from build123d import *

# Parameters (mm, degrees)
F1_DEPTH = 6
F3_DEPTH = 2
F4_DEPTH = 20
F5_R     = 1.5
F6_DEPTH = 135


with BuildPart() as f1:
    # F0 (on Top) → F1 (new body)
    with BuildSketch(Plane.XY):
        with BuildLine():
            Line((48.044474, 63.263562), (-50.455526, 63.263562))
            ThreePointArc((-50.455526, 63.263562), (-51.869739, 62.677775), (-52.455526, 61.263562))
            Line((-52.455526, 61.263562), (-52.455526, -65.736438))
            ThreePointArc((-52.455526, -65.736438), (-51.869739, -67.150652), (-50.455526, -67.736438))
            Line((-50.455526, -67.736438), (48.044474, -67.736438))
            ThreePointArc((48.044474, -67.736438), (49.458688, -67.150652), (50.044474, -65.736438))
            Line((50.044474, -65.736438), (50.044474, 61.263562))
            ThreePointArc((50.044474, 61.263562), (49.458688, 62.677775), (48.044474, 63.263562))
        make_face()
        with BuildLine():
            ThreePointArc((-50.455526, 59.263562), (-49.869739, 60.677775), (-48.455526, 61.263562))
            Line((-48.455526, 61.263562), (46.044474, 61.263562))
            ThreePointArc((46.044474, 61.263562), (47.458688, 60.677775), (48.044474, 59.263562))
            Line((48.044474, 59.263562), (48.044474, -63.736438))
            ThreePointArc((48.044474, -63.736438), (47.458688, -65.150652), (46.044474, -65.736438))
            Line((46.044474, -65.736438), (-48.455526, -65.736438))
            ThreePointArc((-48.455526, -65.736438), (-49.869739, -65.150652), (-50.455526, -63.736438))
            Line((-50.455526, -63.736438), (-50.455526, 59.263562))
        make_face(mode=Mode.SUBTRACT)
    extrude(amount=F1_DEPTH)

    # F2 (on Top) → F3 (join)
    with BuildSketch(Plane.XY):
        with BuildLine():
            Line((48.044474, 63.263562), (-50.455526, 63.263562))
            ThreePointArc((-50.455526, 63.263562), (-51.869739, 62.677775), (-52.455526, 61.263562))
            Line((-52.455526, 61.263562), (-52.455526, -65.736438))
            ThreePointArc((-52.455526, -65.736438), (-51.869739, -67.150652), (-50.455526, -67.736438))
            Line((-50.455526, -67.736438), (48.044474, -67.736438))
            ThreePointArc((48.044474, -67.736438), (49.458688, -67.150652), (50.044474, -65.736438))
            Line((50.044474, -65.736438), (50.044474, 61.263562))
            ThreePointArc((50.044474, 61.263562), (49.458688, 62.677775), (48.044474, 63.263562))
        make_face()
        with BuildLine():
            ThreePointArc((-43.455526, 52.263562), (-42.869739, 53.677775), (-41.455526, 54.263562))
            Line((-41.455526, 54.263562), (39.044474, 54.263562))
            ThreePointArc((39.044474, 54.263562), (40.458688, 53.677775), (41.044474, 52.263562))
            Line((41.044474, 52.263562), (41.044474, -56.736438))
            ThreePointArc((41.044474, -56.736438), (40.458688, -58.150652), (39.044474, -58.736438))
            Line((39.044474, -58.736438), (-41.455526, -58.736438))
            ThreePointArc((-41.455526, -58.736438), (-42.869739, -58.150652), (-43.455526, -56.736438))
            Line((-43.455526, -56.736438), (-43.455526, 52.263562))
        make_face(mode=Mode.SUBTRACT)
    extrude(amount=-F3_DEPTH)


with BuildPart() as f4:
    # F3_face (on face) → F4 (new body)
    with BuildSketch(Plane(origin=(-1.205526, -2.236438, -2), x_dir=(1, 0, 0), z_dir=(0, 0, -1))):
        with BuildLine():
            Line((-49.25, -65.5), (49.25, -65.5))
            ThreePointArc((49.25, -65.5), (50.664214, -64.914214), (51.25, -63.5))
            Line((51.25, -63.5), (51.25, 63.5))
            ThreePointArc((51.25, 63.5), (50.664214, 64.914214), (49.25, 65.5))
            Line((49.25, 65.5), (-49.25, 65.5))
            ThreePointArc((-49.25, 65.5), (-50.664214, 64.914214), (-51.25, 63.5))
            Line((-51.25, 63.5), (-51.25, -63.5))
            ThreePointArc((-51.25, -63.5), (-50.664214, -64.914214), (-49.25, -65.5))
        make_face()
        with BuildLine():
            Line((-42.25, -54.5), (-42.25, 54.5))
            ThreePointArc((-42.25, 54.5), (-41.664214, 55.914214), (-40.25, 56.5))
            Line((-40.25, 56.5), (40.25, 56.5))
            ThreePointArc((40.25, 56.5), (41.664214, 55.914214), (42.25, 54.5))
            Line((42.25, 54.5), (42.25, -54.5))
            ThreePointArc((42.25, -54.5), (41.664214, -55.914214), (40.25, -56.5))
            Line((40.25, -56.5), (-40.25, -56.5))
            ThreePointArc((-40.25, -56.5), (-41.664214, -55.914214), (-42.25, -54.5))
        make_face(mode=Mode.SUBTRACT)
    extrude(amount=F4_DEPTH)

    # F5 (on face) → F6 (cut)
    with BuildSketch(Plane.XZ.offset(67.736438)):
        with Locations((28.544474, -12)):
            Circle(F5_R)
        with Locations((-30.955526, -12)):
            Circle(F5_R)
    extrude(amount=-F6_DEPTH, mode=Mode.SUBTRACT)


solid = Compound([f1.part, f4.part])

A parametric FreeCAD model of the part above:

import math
import FreeCAD as App
import Part
import Sketcher
from FreeCAD import Vector

doc = App.newDocument("Part")
body = doc.addObject("PartDesign::Body", "Body")

# Sketch on XY plane
sketch1 = doc.addObject("Sketcher::SketchObject", "Sketch")
body.addObject(sketch1)
sketch1.AttachmentSupport = (doc.XY_Plane, [""])
sketch1.MapMode = "FlatFace"
sketch1.addGeometry([
    Part.LineSegment(Vector(48, 63.3, 0), Vector(-50.5, 63.3, 0)),  # 0
    Part.ArcOfCircle(Part.Circle(Vector(-50.5, 61.3, 0), Vector(0, 0, 1), 2), math.radians(90), math.radians(180)),  # 1
    Part.LineSegment(Vector(-52.5, 61.3, 0), Vector(-52.5, -65.7, 0)),  # 2
    Part.ArcOfCircle(Part.Circle(Vector(-50.5, -65.7, 0), Vector(0, 0, 1), 2), math.radians(-180), math.radians(-90)),  # 3
    Part.LineSegment(Vector(-50.5, -67.7, 0), Vector(48, -67.7, 0)),  # 4
    Part.ArcOfCircle(Part.Circle(Vector(48, -65.7, 0), Vector(0, 0, 1), 2), math.radians(-90), math.radians(0)),  # 5
    Part.LineSegment(Vector(50, -65.7, 0), Vector(50, 61.3, 0)),  # 6
    Part.ArcOfCircle(Part.Circle(Vector(48, 61.3, 0), Vector(0, 0, 1), 2), math.radians(0), math.radians(90)),  # 7
    Part.LineSegment(Vector(-50.5, -63.7, 0), Vector(-50.5, 59.3, 0)),  # 8
    Part.ArcOfCircle(Part.Circle(Vector(-48.5, 59.3, 0), Vector(0, 0, 1), 2), math.radians(90), math.radians(180)),  # 9
    Part.LineSegment(Vector(-48.5, 61.3, 0), Vector(46, 61.3, 0)),  # 10
    Part.ArcOfCircle(Part.Circle(Vector(46, 59.3, 0), Vector(0, 0, 1), 2), math.radians(0), math.radians(90)),  # 11
    Part.LineSegment(Vector(48, 59.3, 0), Vector(48, -63.7, 0)),  # 12
    Part.ArcOfCircle(Part.Circle(Vector(46, -63.7, 0), Vector(0, 0, 1), 2), math.radians(-90), math.radians(0)),  # 13
    Part.LineSegment(Vector(46, -65.7, 0), Vector(-48.5, -65.7, 0)),  # 14
    Part.ArcOfCircle(Part.Circle(Vector(-48.5, -63.7, 0), Vector(0, 0, 1), 2), math.radians(-180), math.radians(-90)),  # 15
], False)
sketch1.addConstraint([
    Sketcher.Constraint("Tangent", 0, 2, 1, 1),
    Sketcher.Constraint("Tangent", 1, 2, 2, 1),
    Sketcher.Constraint("Tangent", 2, 2, 3, 1),
    Sketcher.Constraint("Tangent", 3, 2, 4, 1),
    Sketcher.Constraint("Tangent", 4, 2, 5, 1),
    Sketcher.Constraint("Tangent", 5, 2, 6, 1),
    Sketcher.Constraint("Tangent", 6, 2, 7, 1),
    Sketcher.Constraint("Tangent", 7, 2, 0, 1),
    Sketcher.Constraint("Tangent", 8, 2, 9, 2),
    Sketcher.Constraint("Tangent", 9, 1, 10, 1),
    Sketcher.Constraint("Tangent", 10, 2, 11, 2),
    Sketcher.Constraint("Tangent", 11, 1, 12, 1),
    Sketcher.Constraint("Tangent", 12, 2, 13, 2),
    Sketcher.Constraint("Tangent", 13, 1, 14, 1),
    Sketcher.Constraint("Tangent", 14, 2, 15, 2),
    Sketcher.Constraint("Tangent", 15, 1, 8, 1),
    Sketcher.Constraint("Horizontal", 0),
    Sketcher.Constraint("Vertical", 2),
    Sketcher.Constraint("Horizontal", 4),
    Sketcher.Constraint("Vertical", 6),
    Sketcher.Constraint("Vertical", 8),
    Sketcher.Constraint("Horizontal", 10),
    Sketcher.Constraint("Vertical", 12),
    Sketcher.Constraint("Horizontal", 14),
    Sketcher.Constraint("Equal", 1, 3),
    Sketcher.Constraint("Equal", 3, 5),
    Sketcher.Constraint("Equal", 5, 7),
    Sketcher.Constraint("Equal", 7, 9),
    Sketcher.Constraint("Equal", 9, 11),
    Sketcher.Constraint("Equal", 11, 13),
    Sketcher.Constraint("Equal", 13, 15),
    Sketcher.Constraint("Horizontal", 6, 2, 9, 1),
    Sketcher.Constraint("Horizontal", 5, 2, 13, 1),
    Sketcher.Constraint("Vertical", 3, 2, 8, 2),
    Sketcher.Constraint("Vertical", 7, 2, 11, 1),
    Sketcher.Constraint("Radius", 1, 2.000002),
    Sketcher.Constraint("DistanceY", 2, 2, 2, 1, 127.0),
    Sketcher.Constraint("DistanceX", 0, 2, 0, 1, 98.5),
    Sketcher.Constraint("DistanceY", -1, 1, 1, 3, 61.26356),
    Sketcher.Constraint("DistanceX", 1, 3, -1, 1, 50.455524),
])
pad1 = doc.addObject("PartDesign::Pad", "Pad")
body.addObject(pad1)
pad1.Profile = sketch1
pad1.Length = 6

# Sketch on XY plane
sketch2 = doc.addObject("Sketcher::SketchObject", "Sketch001")
body.addObject(sketch2)
sketch2.AttachmentSupport = (doc.XY_Plane, [""])
sketch2.MapMode = "FlatFace"
sketch2.addGeometry([
    Part.LineSegment(Vector(48, 63.3, 0), Vector(-50.5, 63.3, 0)),  # 0
    Part.ArcOfCircle(Part.Circle(Vector(-50.5, 61.3, 0), Vector(0, 0, 1), 2), math.radians(90), math.radians(180)),  # 1
    Part.LineSegment(Vector(-52.5, 61.3, 0), Vector(-52.5, -65.7, 0)),  # 2
    Part.ArcOfCircle(Part.Circle(Vector(-50.5, -65.7, 0), Vector(0, 0, 1), 2), math.radians(-180), math.radians(-90)),  # 3
    Part.LineSegment(Vector(-50.5, -67.7, 0), Vector(48, -67.7, 0)),  # 4
    Part.ArcOfCircle(Part.Circle(Vector(48, -65.7, 0), Vector(0, 0, 1), 2), math.radians(-90), math.radians(0)),  # 5
    Part.LineSegment(Vector(50, -65.7, 0), Vector(50, 61.3, 0)),  # 6
    Part.ArcOfCircle(Part.Circle(Vector(48, 61.3, 0), Vector(0, 0, 1), 2), math.radians(0), math.radians(90)),  # 7
    Part.LineSegment(Vector(-43.5, -56.7, 0), Vector(-43.5, 52.3, 0)),  # 8
    Part.ArcOfCircle(Part.Circle(Vector(-41.5, 52.3, 0), Vector(0, 0, 1), 2), math.radians(90), math.radians(180)),  # 9
    Part.LineSegment(Vector(-41.5, 54.3, 0), Vector(39, 54.3, 0)),  # 10
    Part.ArcOfCircle(Part.Circle(Vector(39, 52.3, 0), Vector(0, 0, 1), 2), math.radians(0), math.radians(90)),  # 11
    Part.LineSegment(Vector(41, 52.3, 0), Vector(41, -56.7, 0)),  # 12
    Part.ArcOfCircle(Part.Circle(Vector(39, -56.7, 0), Vector(0, 0, 1), 2), math.radians(-90), math.radians(0)),  # 13
    Part.LineSegment(Vector(39, -58.7, 0), Vector(-41.5, -58.7, 0)),  # 14
    Part.ArcOfCircle(Part.Circle(Vector(-41.5, -56.7, 0), Vector(0, 0, 1), 2), math.radians(-180), math.radians(-90)),  # 15
], False)
sketch2.addConstraint([
    Sketcher.Constraint("Tangent", 0, 2, 1, 1),
    Sketcher.Constraint("Tangent", 1, 2, 2, 1),
    Sketcher.Constraint("Tangent", 2, 2, 3, 1),
    Sketcher.Constraint("Tangent", 3, 2, 4, 1),
    Sketcher.Constraint("Tangent", 4, 2, 5, 1),
    Sketcher.Constraint("Tangent", 5, 2, 6, 1),
    Sketcher.Constraint("Tangent", 6, 2, 7, 1),
    Sketcher.Constraint("Tangent", 7, 2, 0, 1),
    Sketcher.Constraint("Tangent", 8, 2, 9, 2),
    Sketcher.Constraint("Tangent", 9, 1, 10, 1),
    Sketcher.Constraint("Tangent", 10, 2, 11, 2),
    Sketcher.Constraint("Tangent", 11, 1, 12, 1),
    Sketcher.Constraint("Tangent", 12, 2, 13, 2),
    Sketcher.Constraint("Tangent", 13, 1, 14, 1),
    Sketcher.Constraint("Tangent", 14, 2, 15, 2),
    Sketcher.Constraint("Tangent", 15, 1, 8, 1),
    Sketcher.Constraint("Horizontal", 0),
    Sketcher.Constraint("Vertical", 2),
    Sketcher.Constraint("Horizontal", 4),
    Sketcher.Constraint("Vertical", 6),
    Sketcher.Constraint("Vertical", 8),
    Sketcher.Constraint("Horizontal", 10),
    Sketcher.Constraint("Vertical", 12),
    Sketcher.Constraint("Horizontal", 14),
    Sketcher.Constraint("Equal", 1, 3),
    Sketcher.Constraint("Equal", 3, 5),
    Sketcher.Constraint("Equal", 5, 7),
    Sketcher.Constraint("Equal", 7, 9),
    Sketcher.Constraint("Equal", 9, 11),
    Sketcher.Constraint("Equal", 11, 13),
    Sketcher.Constraint("Equal", 13, 15),
    Sketcher.Constraint("Radius", 1, 2.000002),
    Sketcher.Constraint("DistanceY", 2, 2, 2, 1, 127.0),
    Sketcher.Constraint("DistanceY", 8, 1, 8, 2, 109.0),
    Sketcher.Constraint("DistanceX", 0, 2, 0, 1, 98.5),
    Sketcher.Constraint("DistanceX", 10, 1, 10, 2, 80.5),
    Sketcher.Constraint("DistanceX", 1, 3, 9, 3, 9.0),
    Sketcher.Constraint("DistanceY", 9, 3, 1, 3, 9.0),
    Sketcher.Constraint("DistanceY", -1, 1, 1, 3, 61.26356),
    Sketcher.Constraint("DistanceX", 1, 3, -1, 1, 50.455524),
])
pad2 = doc.addObject("PartDesign::Pad", "Pad001")
body.addObject(pad2)
pad2.Profile = sketch2
pad2.Length = 2
pad2.Reversed = True
body2 = doc.addObject("PartDesign::Body", "Body001")

# Sketch on XY plane
sketch3 = doc.addObject("Sketcher::SketchObject", "Sketch002")
body2.addObject(sketch3)
sketch3.AttachmentSupport = (doc.getObject("XY_Plane001"), [""])
sketch3.MapMode = "FlatFace"
sketch3.AttachmentOffset = App.Placement(Vector(0, 0, -2), App.Rotation())
sketch3.addGeometry([
    Part.LineSegment(Vector(-50.5, 63.3, 0), Vector(48, 63.3, 0)),  # 0
    Part.ArcOfCircle(Part.Circle(Vector(48, 61.3, 0), Vector(0, 0, 1), 2), math.radians(0), math.radians(90)),  # 1
    Part.LineSegment(Vector(50, 61.3, 0), Vector(50, -65.7, 0)),  # 2
    Part.ArcOfCircle(Part.Circle(Vector(48, -65.7, 0), Vector(0, 0, 1), 2), math.radians(-90), math.radians(0)),  # 3
    Part.LineSegment(Vector(48, -67.7, 0), Vector(-50.5, -67.7, 0)),  # 4
    Part.ArcOfCircle(Part.Circle(Vector(-50.5, -65.7, 0), Vector(0, 0, 1), 2), math.radians(180), math.radians(270)),  # 5
    Part.LineSegment(Vector(-52.5, -65.7, 0), Vector(-52.5, 61.3, 0)),  # 6
    Part.ArcOfCircle(Part.Circle(Vector(-50.5, 61.3, 0), Vector(0, 0, 1), 2), math.radians(90), math.radians(180)),  # 7
    Part.ArcOfCircle(Part.Circle(Vector(-41.5, 52.3, 0), Vector(0, 0, 1), 2), math.radians(90), math.radians(180)),  # 8
    Part.LineSegment(Vector(-43.5, 52.3, 0), Vector(-43.5, -56.7, 0)),  # 9
    Part.ArcOfCircle(Part.Circle(Vector(-41.5, -56.7, 0), Vector(0, 0, 1), 2), math.radians(180), math.radians(270)),  # 10
    Part.LineSegment(Vector(-41.5, -58.7, 0), Vector(39, -58.7, 0)),  # 11
    Part.ArcOfCircle(Part.Circle(Vector(39, -56.7, 0), Vector(0, 0, 1), 2), math.radians(-90), math.radians(0)),  # 12
    Part.LineSegment(Vector(41, -56.7, 0), Vector(41, 52.3, 0)),  # 13
    Part.ArcOfCircle(Part.Circle(Vector(39, 52.3, 0), Vector(0, 0, 1), 2), math.radians(0), math.radians(90)),  # 14
    Part.LineSegment(Vector(39, 54.3, 0), Vector(-41.5, 54.3, 0)),  # 15
], False)
sketch3.addConstraint([
    Sketcher.Constraint("Tangent", 0, 2, 1, 2),
    Sketcher.Constraint("Tangent", 1, 1, 2, 1),
    Sketcher.Constraint("Tangent", 2, 2, 3, 2),
    Sketcher.Constraint("Tangent", 3, 1, 4, 1),
    Sketcher.Constraint("Tangent", 4, 2, 5, 2),
    Sketcher.Constraint("Tangent", 5, 1, 6, 1),
    Sketcher.Constraint("Tangent", 6, 2, 7, 2),
    Sketcher.Constraint("Tangent", 7, 1, 0, 1),
    Sketcher.Constraint("Tangent", 8, 2, 9, 1),
    Sketcher.Constraint("Tangent", 9, 2, 10, 1),
    Sketcher.Constraint("Tangent", 10, 2, 11, 1),
    Sketcher.Constraint("Tangent", 11, 2, 12, 1),
    Sketcher.Constraint("Tangent", 12, 2, 13, 1),
    Sketcher.Constraint("Tangent", 13, 2, 14, 1),
    Sketcher.Constraint("Tangent", 14, 2, 15, 1),
    Sketcher.Constraint("Tangent", 15, 2, 8, 1),
    Sketcher.Constraint("Horizontal", 0),
    Sketcher.Constraint("Vertical", 2),
    Sketcher.Constraint("Horizontal", 4),
    Sketcher.Constraint("Vertical", 6),
    Sketcher.Constraint("Vertical", 9),
    Sketcher.Constraint("Horizontal", 11),
    Sketcher.Constraint("Vertical", 13),
    Sketcher.Constraint("Horizontal", 15),
    Sketcher.Constraint("Equal", 1, 3),
    Sketcher.Constraint("Equal", 3, 5),
    Sketcher.Constraint("Equal", 5, 7),
    Sketcher.Constraint("Equal", 7, 8),
    Sketcher.Constraint("Equal", 8, 10),
    Sketcher.Constraint("Equal", 10, 12),
    Sketcher.Constraint("Equal", 12, 14),
    Sketcher.Constraint("Radius", 1, 1.999999),
    Sketcher.Constraint("DistanceY", 2, 2, 2, 1, 127.0),
    Sketcher.Constraint("DistanceY", 9, 2, 9, 1, 109.0),
    Sketcher.Constraint("DistanceX", 0, 1, 0, 2, 98.5),
    Sketcher.Constraint("DistanceX", 11, 1, 11, 2, 80.5),
    Sketcher.Constraint("DistanceX", 7, 3, 8, 3, 9.0),
    Sketcher.Constraint("DistanceY", 8, 3, 7, 3, 9.0),
    Sketcher.Constraint("DistanceY", 3, 3, -1, 1, 65.736439),
    Sketcher.Constraint("DistanceX", -1, 1, 1, 3, 48.044475),
])
pad3 = doc.addObject("PartDesign::Pad", "Pad002")
body2.addObject(pad3)
pad3.Profile = sketch3
pad3.Length = 20
pad3.Reversed = True

# Sketch on XZ plane
sketch4 = doc.addObject("Sketcher::SketchObject", "Sketch003")
body2.addObject(sketch4)
sketch4.AttachmentSupport = (doc.getObject("XZ_Plane001"), [""])
sketch4.MapMode = "FlatFace"
sketch4.AttachmentOffset = App.Placement(Vector(0, 0, 67.736438), App.Rotation())
sketch4.addGeometry([
    Part.Circle(Vector(28.5, -12, 0), Vector(0, 0, 1), 1.5),
    Part.Circle(Vector(-31, -12, 0), Vector(0, 0, 1), 1.5),
], False)
sketch4.addConstraint([
    Sketcher.Constraint("Equal", 0, 1),
    Sketcher.Constraint("Horizontal", 0, 3, 1, 3),
    Sketcher.Constraint("Diameter", 0, 3.0),
    Sketcher.Constraint("DistanceY", 0, 3, -1, 1, 12.0),
    Sketcher.Constraint("DistanceX", 1, 3, 0, 3, 59.5),
    Sketcher.Constraint("DistanceX", -1, 1, 0, 3, 28.544474),
])
pocket1 = doc.addObject("PartDesign::Pocket", "Pocket")
body2.addObject(pocket1)
pocket1.Profile = sketch4
pocket1.Length = 135

doc.recompute()
